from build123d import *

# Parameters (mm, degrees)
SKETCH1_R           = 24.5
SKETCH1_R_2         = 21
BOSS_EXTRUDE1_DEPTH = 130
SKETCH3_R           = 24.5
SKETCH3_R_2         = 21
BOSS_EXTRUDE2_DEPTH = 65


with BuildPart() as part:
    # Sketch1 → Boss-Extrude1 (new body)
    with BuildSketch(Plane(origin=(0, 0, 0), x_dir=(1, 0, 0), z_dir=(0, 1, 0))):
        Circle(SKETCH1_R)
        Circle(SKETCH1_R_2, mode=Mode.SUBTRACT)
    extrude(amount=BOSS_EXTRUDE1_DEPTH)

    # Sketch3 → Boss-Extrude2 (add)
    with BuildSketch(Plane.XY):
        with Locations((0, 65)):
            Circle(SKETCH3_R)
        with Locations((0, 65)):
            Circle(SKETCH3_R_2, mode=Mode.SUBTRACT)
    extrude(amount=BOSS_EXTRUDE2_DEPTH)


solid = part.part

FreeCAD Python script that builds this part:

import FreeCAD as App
import Part
import Sketcher
from FreeCAD import Vector
Q = App.Units.Quantity

doc = App.newDocument("Part")
params = doc.addObject("Spreadsheet::Sheet", "Params")
for row, (alias, value) in enumerate([
    ("sketch1_diameter", "49 mm"),
    ("sketch1_diameter2", "42 mm"),
    ("pad1_length", "130 mm"),
    ("sketch2_diameter", "49 mm"),
    ("sketch2_diameter2", "42 mm"),
    ("pad2_length", "65 mm"),
], start=1):
    params.set(f"A{row}", alias)
    params.set(f"B{row}", "=" + value)
    params.setAlias(f"B{row}", alias)

body = doc.addObject("PartDesign::Body", "Body")

sketch1 = body.newObject("Sketcher::SketchObject", "Sketch")
sketch1.AttachmentSupport = (doc.getObject("XZ_Plane"), [""])
sketch1.MapMode = "FlatFace"
sketch1.addGeometry([
    Part.Circle(Vector(0, 0, 0), Vector(0, 0, 1), 24),
    Part.Circle(Vector(0, 0, 0), Vector(0, 0, 1), 21),
], False)
sketch1.addConstraint([
    Sketcher.Constraint("Coincident", 0, 3, -1, 1),
    Sketcher.Constraint("Coincident", 1, 3, -1, 1),
    Sketcher.Constraint("Diameter", 0, Q("49 mm")),
    Sketcher.Constraint("Diameter", 1, Q("42 mm")),
])
sketch1.setExpression("Constraints[2]", "Params.sketch1_diameter")
sketch1.setExpression("Constraints[3]", "Params.sketch1_diameter2")
pad1 = body.newObject("PartDesign::Pad", "Pad")
pad1.Profile = sketch1
pad1.setExpression("Length", "Params.pad1_length")
pad1.Reversed = True

sketch2 = body.newObject("Sketcher::SketchObject", "Sketch001")
sketch2.AttachmentSupport = (doc.getObject("XY_Plane"), [""])
sketch2.MapMode = "FlatFace"
sketch2.addGeometry([
    Part.Circle(Vector(0, 65, 0), Vector(0, 0, 1), 24),
    Part.Circle(Vector(0, 65, 0), Vector(0, 0, 1), 21),
], False)
sketch2.addConstraint([
    Sketcher.Constraint("Coincident", 1, 3, 0, 3),
    Sketcher.Constraint("PointOnObject", 0, 3, -2),
    Sketcher.Constraint("Diameter", 0, Q("49 mm")),
    Sketcher.Constraint("Diameter", 1, Q("42 mm")),
    Sketcher.Constraint("DistanceY", -1, 1, 0, 3, Q("65 mm")),
])
sketch2.setExpression("Constraints[2]", "Params.sketch2_diameter")
sketch2.setExpression("Constraints[3]", "Params.sketch2_diameter2")
pad2 = body.newObject("PartDesign::Pad", "Pad001")
pad2.Profile = sketch2
pad2.setExpression("Length", "Params.pad2_length")

doc.recompute()
